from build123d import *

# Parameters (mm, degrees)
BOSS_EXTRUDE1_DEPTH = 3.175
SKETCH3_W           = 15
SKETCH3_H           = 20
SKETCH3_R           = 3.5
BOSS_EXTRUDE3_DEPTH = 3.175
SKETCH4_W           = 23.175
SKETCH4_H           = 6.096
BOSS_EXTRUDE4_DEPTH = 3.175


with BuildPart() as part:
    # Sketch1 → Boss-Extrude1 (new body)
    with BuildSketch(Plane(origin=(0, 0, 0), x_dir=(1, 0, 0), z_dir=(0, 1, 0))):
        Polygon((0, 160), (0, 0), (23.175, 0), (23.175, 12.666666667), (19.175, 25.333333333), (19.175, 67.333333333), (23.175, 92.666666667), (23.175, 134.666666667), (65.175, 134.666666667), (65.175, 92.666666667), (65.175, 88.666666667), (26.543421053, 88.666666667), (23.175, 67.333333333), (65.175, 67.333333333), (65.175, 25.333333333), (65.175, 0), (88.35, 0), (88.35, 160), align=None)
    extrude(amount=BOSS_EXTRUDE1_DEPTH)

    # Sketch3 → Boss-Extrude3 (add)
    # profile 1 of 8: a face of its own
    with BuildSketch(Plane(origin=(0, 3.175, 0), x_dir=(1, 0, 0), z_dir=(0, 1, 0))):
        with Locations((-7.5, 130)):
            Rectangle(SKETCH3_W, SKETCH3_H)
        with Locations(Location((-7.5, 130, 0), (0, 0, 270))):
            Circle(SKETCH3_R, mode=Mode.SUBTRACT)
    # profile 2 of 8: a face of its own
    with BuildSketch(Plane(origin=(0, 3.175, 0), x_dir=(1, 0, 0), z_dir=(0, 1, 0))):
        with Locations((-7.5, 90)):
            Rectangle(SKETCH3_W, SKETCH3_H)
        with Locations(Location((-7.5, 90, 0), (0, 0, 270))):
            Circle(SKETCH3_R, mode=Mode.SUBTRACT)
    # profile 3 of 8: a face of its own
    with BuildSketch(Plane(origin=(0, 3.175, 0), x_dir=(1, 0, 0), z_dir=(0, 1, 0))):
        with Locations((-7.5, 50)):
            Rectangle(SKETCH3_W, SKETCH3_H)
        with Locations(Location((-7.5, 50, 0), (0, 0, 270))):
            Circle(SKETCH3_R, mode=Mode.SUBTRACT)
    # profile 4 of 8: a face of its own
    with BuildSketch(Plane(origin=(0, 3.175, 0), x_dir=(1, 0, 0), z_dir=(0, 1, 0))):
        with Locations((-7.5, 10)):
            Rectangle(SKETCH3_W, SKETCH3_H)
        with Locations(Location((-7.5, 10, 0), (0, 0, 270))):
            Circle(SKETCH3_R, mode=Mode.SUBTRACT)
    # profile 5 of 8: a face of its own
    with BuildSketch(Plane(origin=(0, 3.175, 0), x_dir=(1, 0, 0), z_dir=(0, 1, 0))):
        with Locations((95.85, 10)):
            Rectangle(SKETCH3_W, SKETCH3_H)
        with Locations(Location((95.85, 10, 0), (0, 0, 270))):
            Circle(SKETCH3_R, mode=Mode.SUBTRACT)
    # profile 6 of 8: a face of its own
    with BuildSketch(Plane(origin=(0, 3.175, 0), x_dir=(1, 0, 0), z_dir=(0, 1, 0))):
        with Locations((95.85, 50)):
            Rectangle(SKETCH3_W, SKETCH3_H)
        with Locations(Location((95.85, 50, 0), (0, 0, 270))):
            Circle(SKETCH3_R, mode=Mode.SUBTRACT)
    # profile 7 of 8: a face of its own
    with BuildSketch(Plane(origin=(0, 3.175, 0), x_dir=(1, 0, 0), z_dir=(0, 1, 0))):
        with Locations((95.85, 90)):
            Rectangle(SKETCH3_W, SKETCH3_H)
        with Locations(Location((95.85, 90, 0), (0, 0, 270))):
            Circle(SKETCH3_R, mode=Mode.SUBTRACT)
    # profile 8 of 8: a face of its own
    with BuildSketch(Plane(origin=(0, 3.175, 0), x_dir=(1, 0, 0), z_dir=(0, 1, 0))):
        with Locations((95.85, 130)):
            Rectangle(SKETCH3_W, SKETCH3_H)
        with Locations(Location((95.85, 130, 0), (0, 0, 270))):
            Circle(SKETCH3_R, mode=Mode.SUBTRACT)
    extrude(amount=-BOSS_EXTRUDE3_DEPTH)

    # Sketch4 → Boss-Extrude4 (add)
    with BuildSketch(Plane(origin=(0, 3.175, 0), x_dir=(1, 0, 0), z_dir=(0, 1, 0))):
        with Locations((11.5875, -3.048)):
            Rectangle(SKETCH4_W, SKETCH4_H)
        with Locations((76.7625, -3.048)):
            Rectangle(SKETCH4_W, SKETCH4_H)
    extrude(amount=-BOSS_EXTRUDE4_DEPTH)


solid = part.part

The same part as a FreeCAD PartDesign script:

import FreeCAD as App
import Part
import Sketcher
from FreeCAD import Vector

doc = App.newDocument("Part")
params = doc.addObject("Spreadsheet::Sheet", "Params")
for row, (alias, value) in enumerate([
    ("sketch1_width", "42 mm"),
    ("sketch1_height", "160 mm"),
    ("sketch1_height2", "46 mm"),
    ("sketch1_width2", "88.35 mm"),
    ("pad1_length", "3.175 mm"),
    ("sketch2_diameter", "7 mm"),
    ("sketch2_width", "15 mm"),
    ("sketch2_height", "20 mm"),
    ("pad2_length", "3.175 mm"),
    ("pad3_length", "3.175 mm"),
], start=1):
    params.set(f"A{row}", alias)
    params.set(f"B{row}", "=" + value)
    params.setAlias(f"B{row}", alias)

body = doc.addObject("PartDesign::Body", "Body")

# Sketch on XZ plane
sketch1 = doc.addObject("Sketcher::SketchObject", "Sketch")
body.addObject(sketch1)
sketch1.AttachmentSupport = (doc.XZ_Plane, [""])
sketch1.MapMode = "FlatFace"
sketch1.addGeometry([
    Part.LineSegment(Vector(0, -160, 0), Vector(0, 0, 0)),  # 0
    Part.LineSegment(Vector(0, 0, 0), Vector(23.175, 0, 0)),  # 1
    Part.LineSegment(Vector(23.175, 0, 0), Vector(23.175, -12.666667, 0)),  # 2
    Part.LineSegment(Vector(23.175, -12.666667, 0), Vector(19.175, -25.333333, 0)),  # 3
    Part.LineSegment(Vector(19.175, -25.333333, 0), Vector(19.175, -67.333333, 0)),  # 4
    Part.LineSegment(Vector(19.175, -67.333333, 0), Vector(23.175, -92.666667, 0)),  # 5
    Part.LineSegment(Vector(23.175, -92.666667, 0), Vector(23.175, -134.666667, 0)),  # 6
    Part.LineSegment(Vector(23.175, -134.666667, 0), Vector(65.175, -134.666667, 0)),  # 7
    Part.LineSegment(Vector(65.175, -134.666667, 0), Vector(65.175, -88.666667, 0)),  # 8
    Part.LineSegment(Vector(65.175, -88.666667, 0), Vector(26.543421, -88.666667, 0)),  # 9
    Part.LineSegment(Vector(26.543421, -88.666667, 0), Vector(23.175, -67.333333, 0)),  # 10
    Part.LineSegment(Vector(23.175, -67.333333, 0), Vector(65.175, -67.333333, 0)),  # 11
    Part.LineSegment(Vector(65.175, -67.333333, 0), Vector(65.175, 0, 0)),  # 12
    Part.LineSegment(Vector(65.175, 0, 0), Vector(88.35, 0, 0)),  # 13
    Part.LineSegment(Vector(88.35, 0, 0), Vector(88.35, -160, 0)),  # 14
    Part.LineSegment(Vector(88.35, -160, 0), Vector(0, -160, 0)),  # 15
], False)
sketch1.addConstraint([
    Sketcher.Constraint("Coincident", 0, 2, 1, 1),
    Sketcher.Constraint("Coincident", 1, 2, 2, 1),
    Sketcher.Constraint("Coincident", 2, 2, 3, 1),
    Sketcher.Constraint("Coincident", 3, 2, 4, 1),
    Sketcher.Constraint("Coincident", 4, 2, 5, 1),
    Sketcher.Constraint("Coincident", 5, 2, 6, 1),
    Sketcher.Constraint("Coincident", 6, 2, 7, 1),
    Sketcher.Constraint("Coincident", 7, 2, 8, 1),
    Sketcher.Constraint("Coincident", 8, 2, 9, 1),
    Sketcher.Constraint("Coincident", 9, 2, 10, 1),
    Sketcher.Constraint("Coincident", 10, 2, 11, 1),
    Sketcher.Constraint("Coincident", 11, 2, 12, 1),
    Sketcher.Constraint("Coincident", 12, 2, 13, 1),
    Sketcher.Constraint("Coincident", 13, 2, 14, 1),
    Sketcher.Constraint("Coincident", 14, 2, 15, 1),
    Sketcher.Constraint("Coincident", 15, 2, 0, 1),
    Sketcher.Constraint("Vertical", 0),
    Sketcher.Constraint("Horizontal", 1),
    Sketcher.Constraint("Vertical", 2),
    Sketcher.Constraint("Vertical", 4),
    Sketcher.Constraint("Vertical", 6),
    Sketcher.Constraint("Horizontal", 7),
    Sketcher.Constraint("Vertical", 8),
    Sketcher.Constraint("Horizontal", 9),
    Sketcher.Constraint("Horizontal", 11),
    Sketcher.Constraint("Vertical", 12),
    Sketcher.Constraint("Horizontal", 13),
    Sketcher.Constraint("Vertical", 14),
    Sketcher.Constraint("Horizontal", 15),
    Sketcher.Constraint("Coincident", 0, 2, -1, 1),
    Sketcher.Constraint("PointOnObject", 12, 2, -1),
    Sketcher.Constraint("Parallel", 5, 10),
    Sketcher.Constraint("Horizontal", 4, 2, 10, 2),
    Sketcher.Constraint("Vertical", 2, 2, 5, 2),
    Sketcher.Constraint("Vertical", 6, 2, 10, 2),
    Sketcher.Constraint("Vertical", 8, 2, 11, 2),
    Sketcher.Constraint("Equal", 1, 13),
    Sketcher.Constraint("Equal", 11, 4),
    Sketcher.Constraint("Equal", 4, 6),
    Sketcher.Constraint("DistanceX", 7, 1, 7, 2, 42.0),
    Sketcher.Constraint("DistanceY", 0, 1, 0, 2, 160.0),
    Sketcher.Constraint("DistanceY", 8, 1, 8, 2, 46.0),
    Sketcher.Constraint("DistanceX", 3, 2, 2, 2, 4.0),
    Sketcher.Constraint("DistanceY", 5, 2, 2, 2, 80.0),
    Sketcher.Constraint("DistanceX", 15, 2, 15, 1, 88.35),
    Sketcher.Constraint("DistanceX", 9, 2, 9, 1, 38.631579),
    Sketcher.Constraint("DistanceY", 2, 2, 2, 1, 12.666667),
])
sketch1.setExpression("Constraints[39]", "Params.sketch1_width")
sketch1.setExpression("Constraints[40]", "Params.sketch1_height")
sketch1.setExpression("Constraints[41]", "Params.sketch1_height2")
sketch1.setExpression("Constraints[44]", "Params.sketch1_width2")
pad1 = doc.addObject("PartDesign::Pad", "Pad")
body.addObject(pad1)
pad1.Profile = sketch1
pad1.setExpression("Length", "Params.pad1_length")
pad1.Reversed = True

# Sketch on XZ plane
sketch2 = doc.addObject("Sketcher::SketchObject", "Sketch001")
body.addObject(sketch2)
sketch2.AttachmentSupport = (doc.XZ_Plane, [""])
sketch2.MapMode = "FlatFace"
sketch2.AttachmentOffset = App.Placement(Vector(0, 0, -3.175), App.Rotation())
sketch2.addGeometry([
    Part.LineSegment(Vector(-15, -140, 0), Vector(-15, -120, 0)),  # 0
    Part.LineSegment(Vector(-15, -120, 0), Vector(0, -120, 0)),  # 1
    Part.LineSegment(Vector(0, -120, 0), Vector(0, -140, 0)),  # 2
    Part.LineSegment(Vector(0, -140, 0), Vector(-15, -140, 0)),  # 3
    Part.Circle(Vector(-7.5, -130, 0), Vector(0, 0, 1), 3.5),  # 4
    Part.LineSegment(Vector(-15, -100, 0), Vector(-15, -80, 0)),  # 5
    Part.LineSegment(Vector(-15, -80, 0), Vector(0, -80, 0)),  # 6
    Part.LineSegment(Vector(0, -80, 0), Vector(0, -100, 0)),  # 7
    Part.LineSegment(Vector(0, -100, 0), Vector(-15, -100, 0)),  # 8
    Part.Circle(Vector(-7.5, -90, 0), Vector(0, 0, 1), 3.5),  # 9
    Part.LineSegment(Vector(-15, -60, 0), Vector(-15, -40, 0)),  # 10
    Part.LineSegment(Vector(-15, -40, 0), Vector(0, -40, 0)),  # 11
    Part.LineSegment(Vector(0, -40, 0), Vector(0, -60, 0)),  # 12
    Part.LineSegment(Vector(0, -60, 0), Vector(-15, -60, 0)),  # 13
    Part.Circle(Vector(-7.5, -50, 0), Vector(0, 0, 1), 3.5),  # 14
    Part.LineSegment(Vector(-15, -20, 0), Vector(-15, 0, 0)),  # 15
    Part.LineSegment(Vector(-15, 0, 0), Vector(0, 0, 0)),  # 16
    Part.LineSegment(Vector(0, 0, 0), Vector(0, -20, 0)),  # 17
    Part.LineSegment(Vector(0, -20, 0), Vector(-15, -20, 0)),  # 18
    Part.Circle(Vector(-7.5, -10, 0), Vector(0, 0, 1), 3.5),  # 19
    Part.LineSegment(Vector(88.35, -20, 0), Vector(88.35, 0, 0)),  # 20
    Part.LineSegment(Vector(88.35, 0, 0), Vector(103.35, 0, 0)),  # 21
    Part.LineSegment(Vector(103.35, 0, 0), Vector(103.35, -20, 0)),  # 22
    Part.LineSegment(Vector(103.35, -20, 0), Vector(88.35, -20, 0)),  # 23
    Part.Circle(Vector(95.85, -10, 0), Vector(0, 0, 1), 3.5),  # 24
    Part.LineSegment(Vector(88.35, -60, 0), Vector(88.35, -40, 0)),  # 25
    Part.LineSegment(Vector(88.35, -40, 0), Vector(103.35, -40, 0)),  # 26
    Part.LineSegment(Vector(103.35, -40, 0), Vector(103.35, -60, 0)),  # 27
    Part.LineSegment(Vector(103.35, -60, 0), Vector(88.35, -60, 0)),  # 28
    Part.Circle(Vector(95.85, -50, 0), Vector(0, 0, 1), 3.5),  # 29
    Part.LineSegment(Vector(88.35, -100, 0), Vector(88.35, -80, 0)),  # 30
    Part.LineSegment(Vector(88.35, -80, 0), Vector(103.35, -80, 0)),  # 31
    Part.LineSegment(Vector(103.35, -80, 0), Vector(103.35, -100, 0)),  # 32
    Part.LineSegment(Vector(103.35, -100, 0), Vector(88.35, -100, 0)),  # 33
    Part.Circle(Vector(95.85, -90, 0), Vector(0, 0, 1), 3.5),  # 34
    Part.LineSegment(Vector(88.35, -140, 0), Vector(88.35, -120, 0)),  # 35
    Part.LineSegment(Vector(88.35, -120, 0), Vector(103.35, -120, 0)),  # 36
    Part.LineSegment(Vector(103.35, -120, 0), Vector(103.35, -140, 0)),  # 37
    Part.LineSegment(Vector(103.35, -140, 0), Vector(88.35, -140, 0)),  # 38
    Part.Circle(Vector(95.85, -130, 0), Vector(0, 0, 1), 3.5),  # 39
], False)
sketch2.addConstraint([
    Sketcher.Constraint("Coincident", 0, 2, 1, 1),
    Sketcher.Constraint("Coincident", 1, 2, 2, 1),
    Sketcher.Constraint("Coincident", 2, 2, 3, 1),
    Sketcher.Constraint("Coincident", 3, 2, 0, 1),
    Sketcher.Constraint("Coincident", 5, 2, 6, 1),
    Sketcher.Constraint("Coincident", 6, 2, 7, 1),
    Sketcher.Constraint("Coincident", 7, 2, 8, 1),
    Sketcher.Constraint("Coincident", 8, 2, 5, 1),
    Sketcher.Constraint("Coincident", 10, 2, 11, 1),
    Sketcher.Constraint("Coincident", 11, 2, 12, 1),
    Sketcher.Constraint("Coincident", 12, 2, 13, 1),
    Sketcher.Constraint("Coincident", 13, 2, 10, 1),
    Sketcher.Constraint("Coincident", 15, 2, 16, 1),
    Sketcher.Constraint("Coincident", 16, 2, 17, 1),
    Sketcher.Constraint("Coincident", 17, 2, 18, 1),
    Sketcher.Constraint("Coincident", 18, 2, 15, 1),
    Sketcher.Constraint("Coincident", 20, 2, 21, 1),
    Sketcher.Constraint("Coincident", 21, 2, 22, 1),
    Sketcher.Constraint("Coincident", 22, 2, 23, 1),
    Sketcher.Constraint("Coincident", 23, 2, 20, 1),
    Sketcher.Constraint("Coincident", 25, 2, 26, 1),
    Sketcher.Constraint("Coincident", 26, 2, 27, 1),
    Sketcher.Constraint("Coincident", 27, 2, 28, 1),
    Sketcher.Constraint("Coincident", 28, 2, 25, 1),
    Sketcher.Constraint("Coincident", 30, 2, 31, 1),
    Sketcher.Constraint("Coincident", 31, 2, 32, 1),
    Sketcher.Constraint("Coincident", 32, 2, 33, 1),
    Sketcher.Constraint("Coincident", 33, 2, 30, 1),
    Sketcher.Constraint("Coincident", 35, 2, 36, 1),
    Sketcher.Constraint("Coincident", 36, 2, 37, 1),
    Sketcher.Constraint("Coincident", 37, 2, 38, 1),
    Sketcher.Constraint("Coincident", 38, 2, 35, 1),
    Sketcher.Constraint("Vertical", 0),
    Sketcher.Constraint("Horizontal", 1),
    Sketcher.Constraint("Vertical", 2),
    Sketcher.Constraint("Horizontal", 3),
    Sketcher.Constraint("Vertical", 5),
    Sketcher.Constraint("Horizontal", 6),
    Sketcher.Constraint("Vertical", 7),
    Sketcher.Constraint("Horizontal", 8),
    Sketcher.Constraint("Vertical", 10),
    Sketcher.Constraint("Horizontal", 11),
    Sketcher.Constraint("Vertical", 12),
    Sketcher.Constraint("Horizontal", 13),
    Sketcher.Constraint("Vertical", 15),
    Sketcher.Constraint("Horizontal", 16),
    Sketcher.Constraint("Vertical", 17),
    Sketcher.Constraint("Horizontal", 18),
    Sketcher.Constraint("Vertical", 20),
    Sketcher.Constraint("Horizontal", 21),
    Sketcher.Constraint("Vertical", 22),
    Sketcher.Constraint("Horizontal", 23),
    Sketcher.Constraint("Vertical", 25),
    Sketcher.Constraint("Horizontal", 26),
    Sketcher.Constraint("Vertical", 27),
    Sketcher.Constraint("Horizontal", 28),
    Sketcher.Constraint("Vertical", 30),
    Sketcher.Constraint("Horizontal", 31),
    Sketcher.Constraint("Vertical", 32),
    Sketcher.Constraint("Horizontal", 33),
    Sketcher.Constraint("Vertical", 35),
    Sketcher.Constraint("Horizontal", 36),
    Sketcher.Constraint("Vertical", 37),
    Sketcher.Constraint("Horizontal", 38),
    Sketcher.Constraint("Coincident", 16, 2, -1, 1),
    Sketcher.Constraint("Equal", 4, 9),
    Sketcher.Constraint("Equal", 9, 14),
    Sketcher.Constraint("Equal", 14, 19),
    Sketcher.Constraint("Equal", 19, 24),
    Sketcher.Constraint("Equal", 24, 29),
    Sketcher.Constraint("Equal", 29, 34),
    Sketcher.Constraint("Equal", 34, 39),
    Sketcher.Constraint("PointOnObject", 1, 2, -2),
    Sketcher.Constraint("PointOnObject", 6, 2, -2),
    Sketcher.Constraint("PointOnObject", 11, 2, -2),
    Sketcher.Constraint("PointOnObject", 20, 2, -1),
    Sketcher.Constraint("Horizontal", 19, 3, 24, 3),
    Sketcher.Constraint("Horizontal", 14, 3, 29, 3),
    Sketcher.Constraint("Horizontal", 9, 3, 34, 3),
    Sketcher.Constraint("Horizontal", 4, 3, 39, 3),
    Sketcher.Constraint("Horizontal", 18, 2, 22, 2),
    Sketcher.Constraint("Horizontal", 11, 2, 25, 2),
    Sketcher.Constraint("Horizontal", 13, 2, 27, 2),
    Sketcher.Constraint("Horizontal", 6, 2, 30, 2),
    Sketcher.Constraint("Horizontal", 8, 2, 32, 2),
    Sketcher.Constraint("Horizontal", 1, 2, 35, 2),
    Sketcher.Constraint("Horizontal", 3, 2, 37, 2),
    Sketcher.Constraint("Vertical", 4, 3, 9, 3),
    Sketcher.Constraint("Vertical", 9, 3, 14, 3),
    Sketcher.Constraint("Vertical", 14, 3, 19, 3),
    Sketcher.Constraint("Vertical", 24, 3, 29, 3),
    Sketcher.Constraint("Vertical", 29, 3, 34, 3),
    Sketcher.Constraint("Vertical", 34, 3, 39, 3),
    Sketcher.Constraint("Vertical", 3, 2, 5, 2),
    Sketcher.Constraint("Vertical", 8, 2, 10, 2),
    Sketcher.Constraint("Vertical", 13, 2, 15, 2),
    Sketcher.Constraint("Vertical", 23, 2, 25, 2),
    Sketcher.Constraint("Vertical", 22, 2, 26, 2),
    Sketcher.Constraint("Vertical", 28, 2, 30, 2),
    Sketcher.Constraint("Vertical", 27, 2, 31, 2),
    Sketcher.Constraint("Vertical", 33, 2, 35, 2),
    Sketcher.Constraint("Vertical", 32, 2, 36, 2),
    Sketcher.Constraint("Equal", 18, 21),
    Sketcher.Constraint("Equal", 2, 5),
    Sketcher.Constraint("Equal", 7, 10),
    Sketcher.Constraint("Equal", 12, 15),
    Sketcher.Constraint("Diameter", 4, 7.0),
    Sketcher.Constraint("DistanceX", 1, 1, 1, 2, 15.0),
    Sketcher.Constraint("DistanceY", 0, 1, 0, 2, 20.0),
    Sketcher.Constraint("DistanceY", 4, 3, -1, 1, 130.0),
    Sketcher.Constraint("DistanceY", 9, 3, -1, 1, 90.0),
    Sketcher.Constraint("DistanceY", 14, 3, -1, 1, 50.0),
    Sketcher.Constraint("DistanceY", 19, 3, -1, 1, 10.0),
    Sketcher.Constraint("DistanceY", 0, 2, -1, 1, 120.0),
    Sketcher.Constraint("DistanceY", 5, 2, -1, 1, 80.0),
    Sketcher.Constraint("DistanceY", 10, 2, -1, 1, 40.0),
    Sketcher.Constraint("DistanceX", 4, 3, -1, 1, 7.5),
    Sketcher.Constraint("DistanceX", 20, 2, 24, 3, 7.5),
    Sketcher.Constraint("DistanceX", -1, 1, 24, 3, 95.85),
])
sketch2.setExpression("Constraints[106]", "Params.sketch2_diameter")
sketch2.setExpression("Constraints[107]", "Params.sketch2_width")
sketch2.setExpression("Constraints[108]", "Params.sketch2_height")
pad2 = doc.addObject("PartDesign::Pad", "Pad001")
body.addObject(pad2)
pad2.Profile = sketch2
pad2.setExpression("Length", "Params.pad2_length")

# Sketch on XZ plane
sketch3 = doc.addObject("Sketcher::SketchObject", "Sketch002")
body.addObject(sketch3)
sketch3.AttachmentSupport = (doc.XZ_Plane, [""])
sketch3.MapMode = "FlatFace"
sketch3.AttachmentOffset = App.Placement(Vector(0, 0, -3.175), App.Rotation())
sketch3.addGeometry([
    Part.LineSegment(Vector(0, 0, 0), Vector(0, 6.096, 0)),  # 0
    Part.LineSegment(Vector(0, 6.096, 0), Vector(23.175, 6.096, 0)),  # 1
    Part.LineSegment(Vector(23.175, 6.096, 0), Vector(23.175, 0, 0)),  # 2
    Part.LineSegment(Vector(23.175, 0, 0), Vector(0, 0, 0)),  # 3
    Part.LineSegment(Vector(65.175, 0, 0), Vector(65.175, 6.096, 0)),  # 4
    Part.LineSegment(Vector(65.175, 6.096, 0), Vector(88.35, 6.096, 0)),  # 5
    Part.LineSegment(Vector(88.35, 6.096, 0), Vector(88.35, 0, 0)),  # 6
    Part.LineSegment(Vector(88.35, 0, 0), Vector(65.175, 0, 0)),  # 7
], False)
sketch3.addConstraint([
    Sketcher.Constraint("Coincident", 0, 2, 1, 1),
    Sketcher.Constraint("Coincident", 1, 2, 2, 1),
    Sketcher.Constraint("Coincident", 2, 2, 3, 1),
    Sketcher.Constraint("Coincident", 3, 2, 0, 1),
    Sketcher.Constraint("Coincident", 4, 2, 5, 1),
    Sketcher.Constraint("Coincident", 5, 2, 6, 1),
    Sketcher.Constraint("Coincident", 6, 2, 7, 1),
    Sketcher.Constraint("Coincident", 7, 2, 4, 1),
    Sketcher.Constraint("Vertical", 0),
    Sketcher.Constraint("Horizontal", 1),
    Sketcher.Constraint("Vertical", 2),
    Sketcher.Constraint("Horizontal", 3),
    Sketcher.Constraint("Vertical", 4),
    Sketcher.Constraint("Horizontal", 5),
    Sketcher.Constraint("Vertical", 6),
    Sketcher.Constraint("Horizontal", 7),
    Sketcher.Constraint("Coincident", 3, 2, -1, 1),
    Sketcher.Constraint("PointOnObject", 6, 2, -1),
    Sketcher.Constraint("Horizontal", 1, 2, 4, 2),
    Sketcher.Constraint("Equal", 3, 5),
    Sketcher.Constraint("DistanceX", 1, 2, 4, 2, 42.0),
    Sketcher.Constraint("DistanceX", 1, 1, 1, 2, 23.175),
    Sketcher.Constraint("DistanceY", 0, 1, 0, 2, 6.096),
])
pad3 = doc.addObject("PartDesign::Pad", "Pad002")
body.addObject(pad3)
pad3.Profile = sketch3
pad3.setExpression("Length", "Params.pad3_length")

doc.recompute()
